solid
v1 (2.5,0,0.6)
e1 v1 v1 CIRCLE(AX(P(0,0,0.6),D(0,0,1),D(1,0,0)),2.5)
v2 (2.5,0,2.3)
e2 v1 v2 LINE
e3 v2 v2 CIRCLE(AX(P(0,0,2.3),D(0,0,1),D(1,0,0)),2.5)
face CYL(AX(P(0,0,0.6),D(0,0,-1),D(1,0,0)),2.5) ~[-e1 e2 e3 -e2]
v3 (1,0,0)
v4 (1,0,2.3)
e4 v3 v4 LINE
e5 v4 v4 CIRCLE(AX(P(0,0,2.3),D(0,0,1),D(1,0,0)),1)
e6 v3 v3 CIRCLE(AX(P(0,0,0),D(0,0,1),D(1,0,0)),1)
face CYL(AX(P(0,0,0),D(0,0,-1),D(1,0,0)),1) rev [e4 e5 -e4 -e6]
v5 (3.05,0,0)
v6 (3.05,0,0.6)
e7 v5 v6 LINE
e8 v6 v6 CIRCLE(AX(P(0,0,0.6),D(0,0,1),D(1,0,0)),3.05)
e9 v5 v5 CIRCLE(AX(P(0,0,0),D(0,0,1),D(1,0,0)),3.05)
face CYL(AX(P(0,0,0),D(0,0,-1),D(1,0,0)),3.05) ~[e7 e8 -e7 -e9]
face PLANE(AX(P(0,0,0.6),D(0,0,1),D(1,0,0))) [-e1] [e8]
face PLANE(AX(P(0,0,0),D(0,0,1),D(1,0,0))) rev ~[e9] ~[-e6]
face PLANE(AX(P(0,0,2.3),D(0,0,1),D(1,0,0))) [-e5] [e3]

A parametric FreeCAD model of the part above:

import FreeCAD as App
import Part
import Sketcher

doc = App.newDocument("Part")
body = doc.addObject("PartDesign::Body", "Body")

sketch1 = body.newObject("Sketcher::SketchObject", "Sketch")
sketch1.AttachmentSupport = (doc.getObject("XY_Plane"), [""])
sketch1.MapMode = "FlatFace"
sketch1.addGeometry(Part.Circle(App.Vector(0, 0, 0), App.Vector(0, 0, 1), 3), False)
sketch1.addGeometry(Part.Circle(App.Vector(0, 0, 0), App.Vector(0, 0, 1), 1), False)
sketch1.addConstraint(Sketcher.Constraint("Coincident", 0, 3, -1, 1))
sketch1.addConstraint(Sketcher.Constraint("Coincident", 1, 3, -1, 1))
sketch1.addConstraint(Sketcher.Constraint("Diameter", 1, 2.0))
sketch1.addConstraint(Sketcher.Constraint("Diameter", 0, 6.1))
pad1 = body.newObject("PartDesign::Pad", "Pad")
pad1.Profile = sketch1
pad1.Length = 0.6

sketch2 = body.newObject("Sketcher::SketchObject", "Sketch001")
sketch2.AttachmentSupport = (doc.getObject("XY_Plane"), [""])
sketch2.MapMode = "FlatFace"
sketch2.AttachmentOffset = App.Placement(App.Vector(0, 0, 0.6), App.Rotation())
sketch2.addGeometry(Part.Circle(App.Vector(0, 0, 0), App.Vector(0, 0, 1), 2.5), False)
sketch2.addGeometry(Part.Circle(App.Vector(0, 0, 0), App.Vector(0, 0, 1), 1), False)
sketch2.addConstraint(Sketcher.Constraint("Coincident", 0, 3, -1, 1))
sketch2.addConstraint(Sketcher.Constraint("Coincident", 1, 3, -1, 1))
sketch2.addConstraint(Sketcher.Constraint("Diameter", 0, 5.0))
sketch2.addConstraint(Sketcher.Constraint("Diameter", 1, 2.0))
pad2 = body.newObject("PartDesign::Pad", "Pad001")
pad2.Profile = sketch2
pad2.Length = 1.7

doc.recompute()
